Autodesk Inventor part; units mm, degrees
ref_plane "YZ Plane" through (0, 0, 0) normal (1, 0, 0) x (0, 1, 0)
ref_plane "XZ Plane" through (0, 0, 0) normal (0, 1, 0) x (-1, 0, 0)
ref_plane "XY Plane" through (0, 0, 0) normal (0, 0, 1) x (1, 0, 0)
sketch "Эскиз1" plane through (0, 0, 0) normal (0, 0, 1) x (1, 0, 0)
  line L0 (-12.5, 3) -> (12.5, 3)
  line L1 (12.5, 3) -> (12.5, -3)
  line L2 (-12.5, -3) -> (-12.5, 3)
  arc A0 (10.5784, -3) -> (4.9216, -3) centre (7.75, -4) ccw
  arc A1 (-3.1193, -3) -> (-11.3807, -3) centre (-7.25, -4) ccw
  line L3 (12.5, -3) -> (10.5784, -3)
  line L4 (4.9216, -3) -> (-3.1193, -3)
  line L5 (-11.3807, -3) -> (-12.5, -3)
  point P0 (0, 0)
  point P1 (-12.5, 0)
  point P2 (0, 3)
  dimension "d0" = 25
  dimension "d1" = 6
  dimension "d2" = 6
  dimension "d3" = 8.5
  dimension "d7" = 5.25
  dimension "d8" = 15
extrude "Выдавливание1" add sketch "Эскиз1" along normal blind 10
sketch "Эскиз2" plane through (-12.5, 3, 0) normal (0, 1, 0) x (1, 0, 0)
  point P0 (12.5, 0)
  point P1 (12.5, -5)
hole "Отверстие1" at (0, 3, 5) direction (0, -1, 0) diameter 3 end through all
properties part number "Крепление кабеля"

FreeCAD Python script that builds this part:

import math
import FreeCAD as App
import Part
import Sketcher

doc = App.newDocument("Part")
body = doc.addObject("PartDesign::Body", "Body")

sketch1 = body.newObject("Sketcher::SketchObject", "Sketch")
sketch1.AttachmentSupport = (doc.getObject("XY_Plane"), [""])
sketch1.MapMode = "FlatFace"
sketch1.addGeometry([
    Part.LineSegment(App.Vector(12.5, 3, 0), App.Vector(-12.5, 3, 0)),
    Part.LineSegment(App.Vector(-12.5, 3, 0), App.Vector(-12.5, -3, 0)),
    Part.LineSegment(App.Vector(-12.5, -3, 0), App.Vector(-11.4, -3, 0)),
    Part.ArcOfCircle(Part.Circle(App.Vector(-7.2, -4, 0), App.Vector(0, 0, 1), 4.3), math.radians(14), math.radians(166)),
    Part.LineSegment(App.Vector(-3.1, -3, 0), App.Vector(4.9, -3, 0)),
    Part.ArcOfCircle(Part.Circle(App.Vector(7.8, -4, 0), App.Vector(0, 0, 1), 3), math.radians(19), math.radians(161)),
    Part.LineSegment(App.Vector(10.6, -3, 0), App.Vector(12.5, -3, 0)),
    Part.LineSegment(App.Vector(12.5, -3, 0), App.Vector(12.5, 3, 0)),
], False)
sketch1.addConstraint([
    Sketcher.Constraint("Coincident", 0, 2, 1, 1),
    Sketcher.Constraint("Coincident", 1, 2, 2, 1),
    Sketcher.Constraint("Coincident", 2, 2, 3, 2),
    Sketcher.Constraint("Coincident", 3, 1, 4, 1),
    Sketcher.Constraint("Coincident", 4, 2, 5, 2),
    Sketcher.Constraint("Coincident", 5, 1, 6, 1),
    Sketcher.Constraint("Coincident", 6, 2, 7, 1),
    Sketcher.Constraint("Coincident", 7, 2, 0, 1),
    Sketcher.Constraint("Horizontal", 0),
    Sketcher.Constraint("Vertical", 1),
    Sketcher.Constraint("Horizontal", 2),
    Sketcher.Constraint("Horizontal", 4),
    Sketcher.Constraint("Horizontal", 6),
    Sketcher.Constraint("Vertical", 7),
    Sketcher.Constraint("Symmetric", 0, 2, 6, 2, -1, 1),
    Sketcher.Constraint("Horizontal", 3, 3, 5, 3),
    Sketcher.Constraint("Horizontal", 2, 2, 3, 1),
    Sketcher.Constraint("Horizontal", 4, 2, 5, 1),
    Sketcher.Constraint("Radius", 5, 3.0),
    Sketcher.Constraint("DistanceX", 0, 2, 0, 1, 25.0),
    Sketcher.Constraint("DistanceY", 1, 2, 1, 1, 6.0),
    Sketcher.Constraint("Radius", 3, 4.25),
    Sketcher.Constraint("DistanceX", 3, 3, 5, 3, 15.0),
    Sketcher.Constraint("DistanceX", 0, 2, 3, 3, 5.25),
    Sketcher.Constraint("DistanceY", 3, 3, -1, 1, 4.0),
])
pad1 = body.newObject("PartDesign::Pad", "Pad")
pad1.Profile = sketch1
pad1.Length = 10

sketch2 = body.newObject("Sketcher::SketchObject", "Sketch001")
sketch2.AttachmentSupport = (doc.getObject("XZ_Plane"), [""])
sketch2.MapMode = "FlatFace"
sketch2.AttachmentOffset = App.Placement(App.Vector(0, 0, -3), App.Rotation())
sketch2.addGeometry(Part.Circle(App.Vector(0, 5, 0), App.Vector(0, 0, 1), 1.5), False)
sketch2.addConstraint([
    Sketcher.Constraint("PointOnObject", 0, 3, -2),
    Sketcher.Constraint("Diameter", 0, 3.0),
    Sketcher.Constraint("DistanceY", -1, 1, 0, 3, 5.0),
])
doc.recompute()
hole = body.newObject("PartDesign::Hole", "Hole")
hole.Profile = sketch2
hole.ThreadType = "None"
hole.Diameter = 3
hole.DepthType = "ThroughAll"
hole.Reversed = True

doc.recompute()
